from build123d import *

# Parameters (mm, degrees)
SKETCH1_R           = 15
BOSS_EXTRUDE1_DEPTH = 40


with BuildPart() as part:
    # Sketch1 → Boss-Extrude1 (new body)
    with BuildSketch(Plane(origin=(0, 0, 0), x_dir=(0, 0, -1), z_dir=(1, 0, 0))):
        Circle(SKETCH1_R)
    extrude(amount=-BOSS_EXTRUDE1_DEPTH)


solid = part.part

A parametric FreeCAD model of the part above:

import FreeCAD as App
import Part
import Sketcher

doc = App.newDocument("Part")
body = doc.addObject("PartDesign::Body", "Body")

# Sketch on YZ plane
sketch1 = doc.addObject("Sketcher::SketchObject", "Sketch")
body.addObject(sketch1)
sketch1.AttachmentSupport = (doc.YZ_Plane, [""])
sketch1.MapMode = "FlatFace"
sketch1.addGeometry(Part.Circle(App.Vector(0, 0, 0), App.Vector(0, 0, 1), 15), False)
sketch1.addConstraint(Sketcher.Constraint("Coincident", 0, 3, -1, 1))
sketch1.addConstraint(Sketcher.Constraint("Diameter", 0, 30.0))
pad1 = doc.addObject("PartDesign::Pad", "Pad")
body.addObject(pad1)
pad1.Profile = sketch1
pad1.Length = 40
pad1.Reversed = True

doc.recompute()
